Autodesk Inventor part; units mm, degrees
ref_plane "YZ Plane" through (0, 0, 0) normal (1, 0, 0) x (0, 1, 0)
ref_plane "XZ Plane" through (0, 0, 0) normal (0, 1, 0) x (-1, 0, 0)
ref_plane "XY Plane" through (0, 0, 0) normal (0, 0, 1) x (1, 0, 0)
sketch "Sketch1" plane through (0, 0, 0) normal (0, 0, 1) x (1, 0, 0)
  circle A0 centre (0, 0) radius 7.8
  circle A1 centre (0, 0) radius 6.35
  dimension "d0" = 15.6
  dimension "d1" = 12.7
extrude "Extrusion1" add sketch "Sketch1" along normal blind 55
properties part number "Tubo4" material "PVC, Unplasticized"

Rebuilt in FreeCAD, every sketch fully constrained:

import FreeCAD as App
import Part
import Sketcher
from FreeCAD import Vector
Q = App.Units.Quantity

doc = App.newDocument("Part")
body = doc.addObject("PartDesign::Body", "Body")

# Sketch on XY plane
sketch1 = body.newObject("Sketcher::SketchObject", "Sketch")
sketch1.AttachmentSupport = (doc.getObject("XY_Plane"), [""])
sketch1.MapMode = "FlatFace"
sketch1.addGeometry([
    Part.Circle(Vector(0, 0, 0), Vector(0, 0, 1), 8),
    Part.Circle(Vector(0, 0, 0), Vector(0, 0, 1), 6),
], False)
sketch1.addConstraint([
    Sketcher.Constraint("Coincident", 0, 3, -1, 1),
    Sketcher.Constraint("Coincident", 1, 3, -1, 1),
    Sketcher.Constraint("Diameter", 0, Q("15.6 mm")),
    Sketcher.Constraint("Diameter", 1, Q("12.7 mm")),
])
pad1 = body.newObject("PartDesign::Pad", "Pad")
pad1.Profile = sketch1
pad1.Length = 55

doc.recompute()
